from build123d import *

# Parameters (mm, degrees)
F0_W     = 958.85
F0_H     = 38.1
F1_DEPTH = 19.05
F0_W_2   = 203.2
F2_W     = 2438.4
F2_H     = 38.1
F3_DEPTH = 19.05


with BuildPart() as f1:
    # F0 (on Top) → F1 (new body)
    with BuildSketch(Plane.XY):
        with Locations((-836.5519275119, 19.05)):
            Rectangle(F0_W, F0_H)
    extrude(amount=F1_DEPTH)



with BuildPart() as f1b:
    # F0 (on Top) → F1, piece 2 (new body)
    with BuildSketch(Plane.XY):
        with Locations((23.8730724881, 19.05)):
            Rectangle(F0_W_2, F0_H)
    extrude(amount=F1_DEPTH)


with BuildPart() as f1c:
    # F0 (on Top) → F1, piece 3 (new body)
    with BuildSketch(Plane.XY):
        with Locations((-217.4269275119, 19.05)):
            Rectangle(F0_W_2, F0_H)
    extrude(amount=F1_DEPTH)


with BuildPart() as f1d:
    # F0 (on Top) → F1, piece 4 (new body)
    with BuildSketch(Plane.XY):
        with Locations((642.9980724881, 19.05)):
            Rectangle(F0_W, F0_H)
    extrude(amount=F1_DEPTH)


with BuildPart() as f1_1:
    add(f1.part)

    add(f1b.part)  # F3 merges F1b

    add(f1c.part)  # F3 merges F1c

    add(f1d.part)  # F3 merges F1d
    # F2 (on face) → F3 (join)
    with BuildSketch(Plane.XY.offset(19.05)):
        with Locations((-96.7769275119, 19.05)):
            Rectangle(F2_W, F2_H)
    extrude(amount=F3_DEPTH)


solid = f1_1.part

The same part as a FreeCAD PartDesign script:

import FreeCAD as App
import Part
import Sketcher
Q = App.Units.Quantity

doc = App.newDocument("Part")
body = doc.addObject("PartDesign::Body", "Body")

sketch1 = doc.addObject("Sketcher::SketchObject", "Sketch")
body.addObject(sketch1)
sketch1.AttachmentSupport = (doc.XY_Plane, [""])
sketch1.MapMode = "FlatFace"
sketch1.addGeometry([
    Part.LineSegment(App.Vector(-1316, 38, 0), App.Vector(-1316, 0, 0)),
    Part.LineSegment(App.Vector(-1316, 0, 0), App.Vector(-357, 0, 0)),
    Part.LineSegment(App.Vector(-357, 0, 0), App.Vector(-357, 38, 0)),
    Part.LineSegment(App.Vector(-357, 38, 0), App.Vector(-1316, 38, 0)),
], False)
sketch1.addConstraint([
    Sketcher.Constraint("Coincident", 0, 2, 1, 1),
    Sketcher.Constraint("Coincident", 1, 2, 2, 1),
    Sketcher.Constraint("Coincident", 2, 2, 3, 1),
    Sketcher.Constraint("Coincident", 3, 2, 0, 1),
    Sketcher.Constraint("Vertical", 0),
    Sketcher.Constraint("Horizontal", 1),
    Sketcher.Constraint("Vertical", 2),
    Sketcher.Constraint("Horizontal", 3),
    Sketcher.Constraint("PointOnObject", 0, 2, -1),
    Sketcher.Constraint("DistanceY", 0, 2, 0, 1, Q("1.5 in")),
    Sketcher.Constraint("DistanceX", 1, 1, 1, 2, Q("37.75 in")),
    Sketcher.Constraint("DistanceX", 0, 2, -1, 1, 1315.976928),
])
pad1 = doc.addObject("PartDesign::Pad", "Pad")
body.addObject(pad1)
pad1.Profile = sketch1
pad1.Length = Q("0.75 in")
body2 = doc.addObject("PartDesign::Body", "Body001")

sketch2 = doc.addObject("Sketcher::SketchObject", "Sketch001")
body2.addObject(sketch2)
sketch2.AttachmentSupport = (doc.getObject("XY_Plane001"), [""])
sketch2.MapMode = "FlatFace"
sketch2.addGeometry([
    Part.LineSegment(App.Vector(-78, 38, 0), App.Vector(-78, 0, 0)),
    Part.LineSegment(App.Vector(-78, 0, 0), App.Vector(125, 0, 0)),
    Part.LineSegment(App.Vector(125, 0, 0), App.Vector(125, 38, 0)),
    Part.LineSegment(App.Vector(125, 38, 0), App.Vector(-78, 38, 0)),
], False)
sketch2.addConstraint([
    Sketcher.Constraint("Coincident", 0, 2, 1, 1),
    Sketcher.Constraint("Coincident", 1, 2, 2, 1),
    Sketcher.Constraint("Coincident", 2, 2, 3, 1),
    Sketcher.Constraint("Coincident", 3, 2, 0, 1),
    Sketcher.Constraint("Vertical", 0),
    Sketcher.Constraint("Horizontal", 1),
    Sketcher.Constraint("Vertical", 2),
    Sketcher.Constraint("Horizontal", 3),
    Sketcher.Constraint("PointOnObject", 0, 2, -1),
    Sketcher.Constraint("DistanceX", 1, 1, 1, 2, Q("8 in")),
    Sketcher.Constraint("DistanceY", 0, 2, 0, 1, Q("1.5 in")),
    Sketcher.Constraint("DistanceX", 0, 2, -1, 1, 77.726928),
])
pad2 = doc.addObject("PartDesign::Pad", "Pad001")
body2.addObject(pad2)
pad2.Profile = sketch2
pad2.Length = Q("0.75 in")
body3 = doc.addObject("PartDesign::Body", "Body002")

sketch3 = doc.addObject("Sketcher::SketchObject", "Sketch002")
body3.addObject(sketch3)
sketch3.AttachmentSupport = (doc.getObject("XY_Plane002"), [""])
sketch3.MapMode = "FlatFace"
sketch3.addGeometry([
    Part.LineSegment(App.Vector(-319, 38, 0), App.Vector(-319, 0, 0)),
    Part.LineSegment(App.Vector(-319, 0, 0), App.Vector(-116, 0, 0)),
    Part.LineSegment(App.Vector(-116, 0, 0), App.Vector(-116, 38, 0)),
    Part.LineSegment(App.Vector(-116, 38, 0), App.Vector(-319, 38, 0)),
], False)
sketch3.addConstraint([
    Sketcher.Constraint("Coincident", 0, 2, 1, 1),
    Sketcher.Constraint("Coincident", 1, 2, 2, 1),
    Sketcher.Constraint("Coincident", 2, 2, 3, 1),
    Sketcher.Constraint("Coincident", 3, 2, 0, 1),
    Sketcher.Constraint("Vertical", 0),
    Sketcher.Constraint("Horizontal", 1),
    Sketcher.Constraint("Vertical", 2),
    Sketcher.Constraint("Horizontal", 3),
    Sketcher.Constraint("PointOnObject", 0, 2, -1),
    Sketcher.Constraint("DistanceX", 1, 1, 1, 2, Q("8 in")),
    Sketcher.Constraint("DistanceY", 0, 2, 0, 1, Q("1.5 in")),
    Sketcher.Constraint("DistanceX", 0, 2, -1, 1, 319.026928),
])
pad3 = doc.addObject("PartDesign::Pad", "Pad002")
body3.addObject(pad3)
pad3.Profile = sketch3
pad3.Length = Q("0.75 in")
body4 = doc.addObject("PartDesign::Body", "Body003")

sketch4 = doc.addObject("Sketcher::SketchObject", "Sketch003")
body4.addObject(sketch4)
sketch4.AttachmentSupport = (doc.getObject("XY_Plane003"), [""])
sketch4.MapMode = "FlatFace"
sketch4.addGeometry([
    Part.LineSegment(App.Vector(164, 38, 0), App.Vector(164, 0, 0)),
    Part.LineSegment(App.Vector(164, 0, 0), App.Vector(1122, 0, 0)),
    Part.LineSegment(App.Vector(1122, 0, 0), App.Vector(1122, 38, 0)),
    Part.LineSegment(App.Vector(1122, 38, 0), App.Vector(164, 38, 0)),
], False)
sketch4.addConstraint([
    Sketcher.Constraint("Coincident", 0, 2, 1, 1),
    Sketcher.Constraint("Coincident", 1, 2, 2, 1),
    Sketcher.Constraint("Coincident", 2, 2, 3, 1),
    Sketcher.Constraint("Coincident", 3, 2, 0, 1),
    Sketcher.Constraint("Vertical", 0),
    Sketcher.Constraint("Horizontal", 1),
    Sketcher.Constraint("Vertical", 2),
    Sketcher.Constraint("Horizontal", 3),
    Sketcher.Constraint("PointOnObject", 0, 2, -1),
    Sketcher.Constraint("DistanceY", 0, 2, 0, 1, Q("1.5 in")),
    Sketcher.Constraint("DistanceX", 1, 1, 1, 2, Q("37.75 in")),
    Sketcher.Constraint("DistanceX", -1, 1, 0, 2, 163.573072),
])
pad4 = doc.addObject("PartDesign::Pad", "Pad003")
body4.addObject(pad4)
pad4.Profile = sketch4
pad4.Length = Q("0.75 in")
body.AllowCompound = True
doc.recompute()

boolean = doc.addObject("PartDesign::Boolean", "Boolean")
body.addObject(boolean)
boolean.Type = "Fuse"
boolean.addObjects([body2])
doc.recompute()

boolean2 = doc.addObject("PartDesign::Boolean", "Boolean001")
body.addObject(boolean2)
boolean2.Type = "Fuse"
boolean2.addObjects([body3])
doc.recompute()

boolean3 = doc.addObject("PartDesign::Boolean", "Boolean002")
body.addObject(boolean3)
boolean3.Type = "Fuse"
boolean3.addObjects([body4])

sketch5 = doc.addObject("Sketcher::SketchObject", "Sketch004")
body.addObject(sketch5)
sketch5.AttachmentSupport = (doc.XY_Plane, [""])
sketch5.MapMode = "FlatFace"
sketch5.AttachmentOffset = App.Placement(App.Vector(0, 0, 0.75 * 25.4), App.Rotation())
sketch5.addGeometry([
    Part.LineSegment(App.Vector(-1316, 38, 0), App.Vector(-1316, 0, 0)),
    Part.LineSegment(App.Vector(-1316, 0, 0), App.Vector(1122, 0, 0)),
    Part.LineSegment(App.Vector(1122, 0, 0), App.Vector(1122, 38, 0)),
    Part.LineSegment(App.Vector(1122, 38, 0), App.Vector(-1316, 38, 0)),
], False)
sketch5.addConstraint([
    Sketcher.Constraint("Coincident", 0, 2, 1, 1),
    Sketcher.Constraint("Coincident", 1, 2, 2, 1),
    Sketcher.Constraint("Coincident", 2, 2, 3, 1),
    Sketcher.Constraint("Coincident", 3, 2, 0, 1),
    Sketcher.Constraint("Vertical", 0),
    Sketcher.Constraint("Horizontal", 1),
    Sketcher.Constraint("Vertical", 2),
    Sketcher.Constraint("Horizontal", 3),
    Sketcher.Constraint("PointOnObject", 0, 2, -1),
    Sketcher.Constraint("DistanceX", 1, 1, 1, 2, Q("96 in")),
    Sketcher.Constraint("DistanceY", 0, 2, 0, 1, Q("1.5 in")),
    Sketcher.Constraint("DistanceX", 0, 2, -1, 1, 1315.976928),
])
pad5 = doc.addObject("PartDesign::Pad", "Pad004")
body.addObject(pad5)
pad5.Profile = sketch5
pad5.Length = Q("0.75 in")

doc.recompute()
